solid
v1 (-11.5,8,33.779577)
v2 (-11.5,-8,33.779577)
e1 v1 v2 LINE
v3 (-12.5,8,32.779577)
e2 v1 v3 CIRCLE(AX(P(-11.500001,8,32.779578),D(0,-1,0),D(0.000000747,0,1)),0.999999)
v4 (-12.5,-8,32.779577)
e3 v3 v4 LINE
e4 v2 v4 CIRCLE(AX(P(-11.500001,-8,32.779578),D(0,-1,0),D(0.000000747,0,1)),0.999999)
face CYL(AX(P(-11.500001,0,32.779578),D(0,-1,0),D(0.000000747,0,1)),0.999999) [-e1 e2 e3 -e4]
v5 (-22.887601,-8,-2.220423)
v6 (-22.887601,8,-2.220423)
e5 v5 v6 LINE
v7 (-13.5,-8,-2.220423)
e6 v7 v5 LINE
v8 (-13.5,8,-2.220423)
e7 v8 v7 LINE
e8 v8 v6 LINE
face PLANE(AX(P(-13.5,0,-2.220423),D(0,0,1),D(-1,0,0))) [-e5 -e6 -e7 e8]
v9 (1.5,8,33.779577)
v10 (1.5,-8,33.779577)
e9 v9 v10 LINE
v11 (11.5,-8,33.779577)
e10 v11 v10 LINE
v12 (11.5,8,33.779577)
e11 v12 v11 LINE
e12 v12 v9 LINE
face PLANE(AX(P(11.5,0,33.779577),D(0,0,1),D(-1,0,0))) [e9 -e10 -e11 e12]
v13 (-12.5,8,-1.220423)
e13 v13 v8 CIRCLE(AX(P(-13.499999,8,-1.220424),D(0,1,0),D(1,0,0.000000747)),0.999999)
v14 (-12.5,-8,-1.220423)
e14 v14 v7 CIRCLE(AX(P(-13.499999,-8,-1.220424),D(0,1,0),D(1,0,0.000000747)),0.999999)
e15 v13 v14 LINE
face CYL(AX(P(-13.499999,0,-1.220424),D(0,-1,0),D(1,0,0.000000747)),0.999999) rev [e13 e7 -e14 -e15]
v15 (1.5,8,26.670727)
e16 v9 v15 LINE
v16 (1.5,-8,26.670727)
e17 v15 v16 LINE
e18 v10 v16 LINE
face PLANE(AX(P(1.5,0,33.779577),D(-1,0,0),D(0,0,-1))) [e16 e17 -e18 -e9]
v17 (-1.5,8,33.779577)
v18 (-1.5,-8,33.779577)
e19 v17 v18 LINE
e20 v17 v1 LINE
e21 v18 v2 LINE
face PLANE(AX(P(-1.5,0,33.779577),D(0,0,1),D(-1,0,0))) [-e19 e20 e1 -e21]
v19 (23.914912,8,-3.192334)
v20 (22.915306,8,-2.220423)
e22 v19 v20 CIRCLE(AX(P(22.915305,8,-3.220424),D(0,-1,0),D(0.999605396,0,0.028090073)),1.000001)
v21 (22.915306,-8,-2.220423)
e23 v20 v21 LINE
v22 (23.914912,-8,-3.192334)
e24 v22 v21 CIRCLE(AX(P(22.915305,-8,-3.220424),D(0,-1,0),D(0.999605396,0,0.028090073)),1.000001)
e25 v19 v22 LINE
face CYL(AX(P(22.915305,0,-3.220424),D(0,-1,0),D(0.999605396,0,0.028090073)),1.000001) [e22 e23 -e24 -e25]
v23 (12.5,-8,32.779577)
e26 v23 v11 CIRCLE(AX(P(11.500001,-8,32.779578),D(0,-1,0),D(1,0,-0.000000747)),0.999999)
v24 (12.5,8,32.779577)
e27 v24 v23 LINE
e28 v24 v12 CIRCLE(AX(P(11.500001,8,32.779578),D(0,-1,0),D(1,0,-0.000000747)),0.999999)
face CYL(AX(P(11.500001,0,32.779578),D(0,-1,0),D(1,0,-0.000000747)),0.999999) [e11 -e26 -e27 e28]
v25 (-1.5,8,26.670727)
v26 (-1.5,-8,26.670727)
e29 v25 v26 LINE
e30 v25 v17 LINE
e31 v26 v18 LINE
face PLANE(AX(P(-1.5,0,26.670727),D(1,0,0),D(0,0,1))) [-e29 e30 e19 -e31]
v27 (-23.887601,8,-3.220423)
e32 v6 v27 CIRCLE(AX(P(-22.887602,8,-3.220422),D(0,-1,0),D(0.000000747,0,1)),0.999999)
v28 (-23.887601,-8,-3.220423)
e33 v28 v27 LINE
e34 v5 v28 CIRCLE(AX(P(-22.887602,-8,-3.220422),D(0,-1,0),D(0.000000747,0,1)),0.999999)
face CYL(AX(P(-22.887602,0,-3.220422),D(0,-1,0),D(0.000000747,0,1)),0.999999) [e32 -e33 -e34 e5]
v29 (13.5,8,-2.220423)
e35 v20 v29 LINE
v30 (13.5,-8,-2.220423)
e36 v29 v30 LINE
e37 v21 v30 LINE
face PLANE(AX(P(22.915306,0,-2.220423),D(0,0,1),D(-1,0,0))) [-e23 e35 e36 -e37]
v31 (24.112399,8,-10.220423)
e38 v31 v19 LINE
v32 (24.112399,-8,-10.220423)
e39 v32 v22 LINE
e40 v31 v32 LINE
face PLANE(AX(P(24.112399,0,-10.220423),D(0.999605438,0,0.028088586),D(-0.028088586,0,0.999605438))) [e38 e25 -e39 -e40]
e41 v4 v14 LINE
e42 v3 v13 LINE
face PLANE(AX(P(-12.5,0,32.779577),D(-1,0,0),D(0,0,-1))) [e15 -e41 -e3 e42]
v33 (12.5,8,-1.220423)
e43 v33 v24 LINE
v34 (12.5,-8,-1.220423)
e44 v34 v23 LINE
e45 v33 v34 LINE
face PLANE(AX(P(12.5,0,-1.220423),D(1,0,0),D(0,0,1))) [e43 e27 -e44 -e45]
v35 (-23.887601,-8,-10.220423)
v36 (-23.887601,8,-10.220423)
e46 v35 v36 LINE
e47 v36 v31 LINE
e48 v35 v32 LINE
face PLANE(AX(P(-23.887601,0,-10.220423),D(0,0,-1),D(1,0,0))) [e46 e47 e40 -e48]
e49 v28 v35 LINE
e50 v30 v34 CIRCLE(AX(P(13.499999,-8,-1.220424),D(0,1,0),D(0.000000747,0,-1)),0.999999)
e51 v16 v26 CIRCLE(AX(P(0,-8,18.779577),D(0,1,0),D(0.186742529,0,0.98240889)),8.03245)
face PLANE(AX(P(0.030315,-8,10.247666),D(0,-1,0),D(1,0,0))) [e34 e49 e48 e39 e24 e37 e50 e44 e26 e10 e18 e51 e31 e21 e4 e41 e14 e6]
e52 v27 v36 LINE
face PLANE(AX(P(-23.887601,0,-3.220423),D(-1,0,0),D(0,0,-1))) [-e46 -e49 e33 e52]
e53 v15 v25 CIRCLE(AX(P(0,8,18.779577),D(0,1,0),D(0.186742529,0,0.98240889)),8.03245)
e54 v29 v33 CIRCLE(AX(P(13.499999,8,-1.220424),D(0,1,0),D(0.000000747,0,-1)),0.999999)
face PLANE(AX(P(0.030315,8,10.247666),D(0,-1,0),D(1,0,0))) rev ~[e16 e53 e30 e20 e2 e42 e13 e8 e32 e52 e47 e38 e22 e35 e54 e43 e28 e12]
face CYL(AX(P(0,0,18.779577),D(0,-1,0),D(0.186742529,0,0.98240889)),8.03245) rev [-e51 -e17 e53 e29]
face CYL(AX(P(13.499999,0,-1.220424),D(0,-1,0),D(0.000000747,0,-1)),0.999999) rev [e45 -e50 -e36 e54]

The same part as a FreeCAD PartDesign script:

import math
import FreeCAD as App
import Part
import Sketcher
from FreeCAD import Vector
Q = App.Units.Quantity

doc = App.newDocument("Part")
params = doc.addObject("Spreadsheet::Sheet", "Params")
for row, (alias, value) in enumerate([
    ("sketch1_radius", "1.000001 mm"),
    ("sketch1_width", "48 mm"),
    ("sketch1_width2", "10 mm"),
    ("sketch1_height", "34 mm"),
    ("sketch1_height2", "7 mm"),
    ("pad1_length", "16 mm"),
], start=1):
    params.set(f"A{row}", alias)
    params.set(f"B{row}", "=" + value)
    params.setAlias(f"B{row}", alias)

body = doc.addObject("PartDesign::Body", "Body")

# Sketch on XZ plane
sketch1 = doc.addObject("Sketcher::SketchObject", "Sketch")
body.addObject(sketch1)
sketch1.AttachmentSupport = (doc.XZ_Plane, [""])
sketch1.MapMode = "FlatFace"
sketch1.addGeometry([
    Part.LineSegment(Vector(-23.9, -10.2, 0), Vector(24.1, -10.2, 0)),  # 0
    Part.LineSegment(Vector(24.1, -10.2, 0), Vector(23.9, -3.2, 0)),  # 1
    Part.ArcOfCircle(Part.Circle(Vector(22.9, -3.2, 0), Vector(0, 0, 1), 1), math.radians(2), math.radians(90)),  # 2
    Part.LineSegment(Vector(22.9, -2.2, 0), Vector(13.5, -2.2, 0)),  # 3
    Part.ArcOfCircle(Part.Circle(Vector(13.5, -1.2, 0), Vector(0, 0, 1), 1), math.radians(180), math.radians(270)),  # 4
    Part.LineSegment(Vector(12.5, -1.2, 0), Vector(12.5, 32.8, 0)),  # 5
    Part.ArcOfCircle(Part.Circle(Vector(11.5, 32.8, 0), Vector(0, 0, 1), 1), math.radians(0), math.radians(90)),  # 6
    Part.LineSegment(Vector(11.5, 33.8, 0), Vector(1.5, 33.8, 0)),  # 7
    Part.LineSegment(Vector(1.5, 33.8, 0), Vector(1.5, 26.7, 0)),  # 8
    Part.ArcOfCircle(Part.Circle(Vector(0, 18.8, 0), Vector(0, 0, 1), 8), math.radians(101), math.radians(439)),  # 9
    Part.LineSegment(Vector(-1.5, 26.7, 0), Vector(-1.5, 33.8, 0)),  # 10
    Part.LineSegment(Vector(-1.5, 33.8, 0), Vector(-11.5, 33.8, 0)),  # 11
    Part.ArcOfCircle(Part.Circle(Vector(-11.5, 32.8, 0), Vector(0, 0, 1), 1), math.radians(90), math.radians(180)),  # 12
    Part.LineSegment(Vector(-12.5, 32.8, 0), Vector(-12.5, -1.2, 0)),  # 13
    Part.ArcOfCircle(Part.Circle(Vector(-13.5, -1.2, 0), Vector(0, 0, 1), 1), math.radians(-90), math.radians(0)),  # 14
    Part.LineSegment(Vector(-13.5, -2.2, 0), Vector(-22.9, -2.2, 0)),  # 15
    Part.ArcOfCircle(Part.Circle(Vector(-22.9, -3.2, 0), Vector(0, 0, 1), 1), math.radians(90), math.radians(180)),  # 16
    Part.LineSegment(Vector(-23.9, -3.2, 0), Vector(-23.9, -10.2, 0)),  # 17
], False)
sketch1.addConstraint([
    Sketcher.Constraint("Coincident", 0, 2, 1, 1),
    Sketcher.Constraint("Tangent", 1, 2, 2, 1),
    Sketcher.Constraint("Tangent", 2, 2, 3, 1),
    Sketcher.Constraint("Tangent", 3, 2, 4, 2),
    Sketcher.Constraint("Tangent", 4, 1, 5, 1),
    Sketcher.Constraint("Tangent", 5, 2, 6, 1),
    Sketcher.Constraint("Tangent", 6, 2, 7, 1),
    Sketcher.Constraint("Coincident", 7, 2, 8, 1),
    Sketcher.Constraint("Coincident", 8, 2, 9, 2),
    Sketcher.Constraint("Coincident", 9, 1, 10, 1),
    Sketcher.Constraint("Coincident", 10, 2, 11, 1),
    Sketcher.Constraint("Tangent", 11, 2, 12, 1),
    Sketcher.Constraint("Tangent", 12, 2, 13, 1),
    Sketcher.Constraint("Tangent", 13, 2, 14, 2),
    Sketcher.Constraint("Tangent", 14, 1, 15, 1),
    Sketcher.Constraint("Tangent", 15, 2, 16, 1),
    Sketcher.Constraint("Tangent", 16, 2, 17, 1),
    Sketcher.Constraint("Coincident", 17, 2, 0, 1),
    Sketcher.Constraint("Horizontal", 0),
    Sketcher.Constraint("Horizontal", 3),
    Sketcher.Constraint("Vertical", 5),
    Sketcher.Constraint("Horizontal", 7),
    Sketcher.Constraint("Vertical", 8),
    Sketcher.Constraint("Vertical", 10),
    Sketcher.Constraint("Horizontal", 11),
    Sketcher.Constraint("Vertical", 13),
    Sketcher.Constraint("Horizontal", 15),
    Sketcher.Constraint("Vertical", 17),
    Sketcher.Constraint("Equal", 2, 4),
    Sketcher.Constraint("Equal", 4, 6),
    Sketcher.Constraint("Equal", 6, 12),
    Sketcher.Constraint("Equal", 12, 14),
    Sketcher.Constraint("Equal", 14, 16),
    Sketcher.Constraint("Symmetric", 6, 3, 12, 3, -2),
    Sketcher.Constraint("Symmetric", 8, 2, 9, 1, -2),
    Sketcher.Constraint("Horizontal", 4, 3, 14, 3),
    Sketcher.Constraint("Radius", 2, Q("1.000001 mm")),
    Sketcher.Constraint("DistanceX", 0, 1, 0, 2, Q("48 mm")),
    Sketcher.Constraint("DistanceX", 7, 2, 7, 1, Q("10 mm")),
    Sketcher.Constraint("DistanceY", 5, 1, 5, 2, Q("34 mm")),
    Sketcher.Constraint("DistanceY", 17, 2, 17, 1, Q("7 mm")),
    Sketcher.Constraint("DistanceY", 9, 3, 6, 3, Q("14.000001 mm")),
    Sketcher.Constraint("DistanceX", 12, 3, 6, 3, Q("23.000001 mm")),
    Sketcher.Constraint("Radius", 9, Q("8.03245 mm")),
    Sketcher.Constraint("DistanceX", 15, 2, 15, 1, Q("9.387601 mm")),
    Sketcher.Constraint("DistanceX", 3, 2, 3, 1, Q("9.415306 mm")),
    Sketcher.Constraint("DistanceY", 2, 3, -1, 1, Q("3.220424 mm")),
])
sketch1.setExpression("Constraints[36]", "Params.sketch1_radius")
sketch1.setExpression("Constraints[37]", "Params.sketch1_width")
sketch1.setExpression("Constraints[38]", "Params.sketch1_width2")
sketch1.setExpression("Constraints[39]", "Params.sketch1_height")
sketch1.setExpression("Constraints[40]", "Params.sketch1_height2")
pad1 = doc.addObject("PartDesign::Pad", "Pad")
body.addObject(pad1)
pad1.Profile = sketch1
pad1.setExpression("Length", "Params.pad1_length")
pad1.Midplane = True

doc.recompute()
